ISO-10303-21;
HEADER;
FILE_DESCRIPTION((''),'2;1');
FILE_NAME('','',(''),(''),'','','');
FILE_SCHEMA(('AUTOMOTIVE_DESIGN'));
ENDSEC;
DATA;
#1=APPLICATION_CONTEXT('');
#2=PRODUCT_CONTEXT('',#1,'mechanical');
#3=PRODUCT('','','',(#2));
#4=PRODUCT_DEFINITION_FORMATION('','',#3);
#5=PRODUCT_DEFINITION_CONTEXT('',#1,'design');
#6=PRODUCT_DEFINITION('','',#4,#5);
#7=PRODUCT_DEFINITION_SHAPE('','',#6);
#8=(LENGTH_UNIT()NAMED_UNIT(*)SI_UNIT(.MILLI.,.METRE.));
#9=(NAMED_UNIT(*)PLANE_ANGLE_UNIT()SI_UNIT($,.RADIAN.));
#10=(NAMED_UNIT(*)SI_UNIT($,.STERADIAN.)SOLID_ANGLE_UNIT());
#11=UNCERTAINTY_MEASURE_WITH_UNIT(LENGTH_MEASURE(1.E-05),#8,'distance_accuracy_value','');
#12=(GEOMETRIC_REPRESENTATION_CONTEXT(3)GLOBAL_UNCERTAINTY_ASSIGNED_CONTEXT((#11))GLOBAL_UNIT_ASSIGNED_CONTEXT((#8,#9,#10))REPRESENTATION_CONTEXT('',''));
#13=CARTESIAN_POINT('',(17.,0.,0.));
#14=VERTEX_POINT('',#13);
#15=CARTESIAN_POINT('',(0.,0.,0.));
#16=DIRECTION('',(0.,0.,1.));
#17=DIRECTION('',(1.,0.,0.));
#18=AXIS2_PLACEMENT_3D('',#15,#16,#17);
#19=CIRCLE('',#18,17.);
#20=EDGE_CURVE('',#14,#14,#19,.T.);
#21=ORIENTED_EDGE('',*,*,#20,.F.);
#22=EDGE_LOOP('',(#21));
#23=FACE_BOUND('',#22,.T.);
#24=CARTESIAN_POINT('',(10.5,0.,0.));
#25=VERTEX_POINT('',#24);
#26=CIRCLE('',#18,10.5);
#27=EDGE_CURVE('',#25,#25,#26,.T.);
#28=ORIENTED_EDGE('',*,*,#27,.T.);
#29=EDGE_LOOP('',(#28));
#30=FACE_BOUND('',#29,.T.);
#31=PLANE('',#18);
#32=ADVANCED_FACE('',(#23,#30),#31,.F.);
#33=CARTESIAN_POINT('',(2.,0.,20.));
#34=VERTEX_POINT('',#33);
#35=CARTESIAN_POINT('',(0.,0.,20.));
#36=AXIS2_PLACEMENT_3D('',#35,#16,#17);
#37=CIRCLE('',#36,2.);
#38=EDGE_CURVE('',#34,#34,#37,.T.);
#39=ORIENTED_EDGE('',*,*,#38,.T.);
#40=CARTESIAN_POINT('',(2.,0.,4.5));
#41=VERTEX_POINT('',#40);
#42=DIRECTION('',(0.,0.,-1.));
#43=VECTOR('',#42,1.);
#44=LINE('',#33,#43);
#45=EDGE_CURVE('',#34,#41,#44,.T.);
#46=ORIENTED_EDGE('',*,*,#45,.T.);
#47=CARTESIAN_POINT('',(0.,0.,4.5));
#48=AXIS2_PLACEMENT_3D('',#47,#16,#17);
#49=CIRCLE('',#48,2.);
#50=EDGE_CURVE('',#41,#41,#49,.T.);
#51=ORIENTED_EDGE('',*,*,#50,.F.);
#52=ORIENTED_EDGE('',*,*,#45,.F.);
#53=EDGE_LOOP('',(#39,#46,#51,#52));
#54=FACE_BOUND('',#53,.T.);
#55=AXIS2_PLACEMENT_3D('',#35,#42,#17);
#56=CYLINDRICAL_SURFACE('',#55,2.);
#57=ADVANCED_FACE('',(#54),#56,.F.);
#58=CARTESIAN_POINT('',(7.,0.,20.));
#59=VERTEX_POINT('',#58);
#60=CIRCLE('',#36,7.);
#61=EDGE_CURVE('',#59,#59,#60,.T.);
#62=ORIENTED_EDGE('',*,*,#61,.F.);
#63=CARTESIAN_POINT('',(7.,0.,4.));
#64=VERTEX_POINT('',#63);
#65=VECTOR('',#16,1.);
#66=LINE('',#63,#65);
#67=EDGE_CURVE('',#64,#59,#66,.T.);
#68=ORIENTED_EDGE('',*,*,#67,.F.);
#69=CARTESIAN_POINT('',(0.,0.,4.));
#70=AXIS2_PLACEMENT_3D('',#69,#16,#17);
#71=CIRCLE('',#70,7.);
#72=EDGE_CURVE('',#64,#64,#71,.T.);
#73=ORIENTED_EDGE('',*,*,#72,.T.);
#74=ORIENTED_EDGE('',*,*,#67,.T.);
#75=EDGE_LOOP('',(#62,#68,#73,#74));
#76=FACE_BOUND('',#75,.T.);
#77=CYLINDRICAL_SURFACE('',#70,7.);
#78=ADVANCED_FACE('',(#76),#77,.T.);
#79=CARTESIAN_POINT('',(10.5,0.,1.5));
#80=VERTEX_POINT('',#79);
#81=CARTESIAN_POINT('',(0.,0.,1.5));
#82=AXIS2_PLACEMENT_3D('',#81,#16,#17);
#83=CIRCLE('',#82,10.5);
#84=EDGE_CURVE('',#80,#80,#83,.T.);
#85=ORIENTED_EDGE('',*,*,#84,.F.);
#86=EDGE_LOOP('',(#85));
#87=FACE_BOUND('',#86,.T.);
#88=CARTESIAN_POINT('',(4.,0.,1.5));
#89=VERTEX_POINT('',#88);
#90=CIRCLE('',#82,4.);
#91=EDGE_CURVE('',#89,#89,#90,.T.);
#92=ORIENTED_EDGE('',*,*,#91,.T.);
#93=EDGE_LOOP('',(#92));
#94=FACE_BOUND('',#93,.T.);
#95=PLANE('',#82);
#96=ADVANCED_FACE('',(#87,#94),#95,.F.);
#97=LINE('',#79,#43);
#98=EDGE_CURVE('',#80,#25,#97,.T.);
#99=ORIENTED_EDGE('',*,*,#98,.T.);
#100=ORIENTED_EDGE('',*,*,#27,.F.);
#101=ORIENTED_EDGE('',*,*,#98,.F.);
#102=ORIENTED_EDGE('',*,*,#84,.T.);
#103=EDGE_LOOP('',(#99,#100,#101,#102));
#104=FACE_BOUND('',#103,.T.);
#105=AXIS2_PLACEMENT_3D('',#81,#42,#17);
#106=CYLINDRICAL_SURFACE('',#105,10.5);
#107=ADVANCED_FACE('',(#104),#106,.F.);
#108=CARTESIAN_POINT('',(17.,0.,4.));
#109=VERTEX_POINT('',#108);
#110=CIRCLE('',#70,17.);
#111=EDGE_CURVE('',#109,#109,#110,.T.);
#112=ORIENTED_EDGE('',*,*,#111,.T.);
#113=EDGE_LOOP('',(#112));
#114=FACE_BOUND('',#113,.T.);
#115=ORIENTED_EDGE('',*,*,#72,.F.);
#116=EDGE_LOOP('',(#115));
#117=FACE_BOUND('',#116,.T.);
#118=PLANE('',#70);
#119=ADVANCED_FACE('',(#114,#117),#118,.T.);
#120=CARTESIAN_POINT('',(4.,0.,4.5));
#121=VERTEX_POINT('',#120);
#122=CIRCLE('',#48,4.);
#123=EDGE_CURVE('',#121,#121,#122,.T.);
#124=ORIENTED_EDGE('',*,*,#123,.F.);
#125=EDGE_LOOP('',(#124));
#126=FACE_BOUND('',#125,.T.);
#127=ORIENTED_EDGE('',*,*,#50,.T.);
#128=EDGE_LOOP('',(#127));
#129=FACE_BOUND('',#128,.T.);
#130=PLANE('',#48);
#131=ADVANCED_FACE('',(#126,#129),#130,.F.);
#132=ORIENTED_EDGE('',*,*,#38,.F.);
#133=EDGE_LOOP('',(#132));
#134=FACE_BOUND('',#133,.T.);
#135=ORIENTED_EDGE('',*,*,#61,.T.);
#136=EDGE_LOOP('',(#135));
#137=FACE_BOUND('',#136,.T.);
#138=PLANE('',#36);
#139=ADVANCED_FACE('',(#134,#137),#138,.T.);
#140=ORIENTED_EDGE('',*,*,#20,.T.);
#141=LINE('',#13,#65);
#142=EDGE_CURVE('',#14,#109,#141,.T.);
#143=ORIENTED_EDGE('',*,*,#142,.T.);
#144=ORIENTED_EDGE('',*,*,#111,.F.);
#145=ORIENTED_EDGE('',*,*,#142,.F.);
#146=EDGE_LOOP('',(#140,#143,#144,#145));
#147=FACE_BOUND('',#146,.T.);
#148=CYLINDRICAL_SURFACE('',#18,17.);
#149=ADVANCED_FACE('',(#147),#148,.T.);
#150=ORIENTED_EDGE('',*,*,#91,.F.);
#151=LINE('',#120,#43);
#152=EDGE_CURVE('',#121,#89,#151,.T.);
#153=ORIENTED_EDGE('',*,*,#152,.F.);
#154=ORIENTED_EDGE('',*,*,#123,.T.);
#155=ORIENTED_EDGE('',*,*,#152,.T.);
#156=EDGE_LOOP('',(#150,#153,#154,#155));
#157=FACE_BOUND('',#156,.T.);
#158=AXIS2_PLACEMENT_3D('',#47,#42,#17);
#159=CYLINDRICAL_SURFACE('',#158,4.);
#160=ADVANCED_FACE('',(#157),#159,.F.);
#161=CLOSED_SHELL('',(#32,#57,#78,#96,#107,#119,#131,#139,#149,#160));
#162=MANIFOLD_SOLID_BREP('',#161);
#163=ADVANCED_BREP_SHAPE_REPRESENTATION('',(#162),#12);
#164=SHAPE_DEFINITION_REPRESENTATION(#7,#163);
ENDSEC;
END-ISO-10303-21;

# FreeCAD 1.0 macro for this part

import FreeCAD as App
import Part
import Sketcher
from FreeCAD import Vector

doc = App.newDocument("Part")
params = doc.addObject("Spreadsheet::Sheet", "Params")
for row, (alias, value) in enumerate([
    ("sketch1_width", "2 mm"),
    ("sketch1_width2", "10 mm"),
    ("sketch1_width3", "5 mm"),
    ("sketch1_height", "3 mm"),
    ("sketch1_height2", "4 mm"),
    ("revolution_angle", "360 deg"),
], start=1):
    params.set(f"A{row}", alias)
    params.set(f"B{row}", "=" + value)
    params.setAlias(f"B{row}", alias)

body = doc.addObject("PartDesign::Body", "Body")

sketch1 = body.newObject("Sketcher::SketchObject", "Sketch")
sketch1.AttachmentSupport = (doc.getObject("XZ_Plane"), [""])
sketch1.MapMode = "FlatFace"
sketch1.addGeometry([
    Part.LineSegment(Vector(2, 20, 0), Vector(2, 4.5, 0)),
    Part.LineSegment(Vector(2, 4.5, 0), Vector(4, 4.5, 0)),
    Part.LineSegment(Vector(4, 4.5, 0), Vector(4, 1.5, 0)),
    Part.LineSegment(Vector(4, 1.5, 0), Vector(10.5, 1.5, 0)),
    Part.LineSegment(Vector(10.5, 1.5, 0), Vector(10.5, 0, 0)),
    Part.LineSegment(Vector(10.5, 0, 0), Vector(17, 0, 0)),
    Part.LineSegment(Vector(17, 0, 0), Vector(17, 4, 0)),
    Part.LineSegment(Vector(17, 4, 0), Vector(7, 4, 0)),
    Part.LineSegment(Vector(7, 4, 0), Vector(7, 20, 0)),
    Part.LineSegment(Vector(7, 20, 0), Vector(2, 20, 0)),
], False)
sketch1.addConstraint([
    Sketcher.Constraint("Coincident", 0, 2, 1, 1),
    Sketcher.Constraint("Coincident", 1, 2, 2, 1),
    Sketcher.Constraint("Coincident", 2, 2, 3, 1),
    Sketcher.Constraint("Coincident", 3, 2, 4, 1),
    Sketcher.Constraint("Coincident", 4, 2, 5, 1),
    Sketcher.Constraint("Coincident", 5, 2, 6, 1),
    Sketcher.Constraint("Coincident", 6, 2, 7, 1),
    Sketcher.Constraint("Coincident", 7, 2, 8, 1),
    Sketcher.Constraint("Coincident", 8, 2, 9, 1),
    Sketcher.Constraint("Coincident", 9, 2, 0, 1),
    Sketcher.Constraint("Vertical", 0),
    Sketcher.Constraint("Horizontal", 1),
    Sketcher.Constraint("Vertical", 2),
    Sketcher.Constraint("Horizontal", 3),
    Sketcher.Constraint("Vertical", 4),
    Sketcher.Constraint("Horizontal", 5),
    Sketcher.Constraint("Vertical", 6),
    Sketcher.Constraint("Horizontal", 7),
    Sketcher.Constraint("Vertical", 8),
    Sketcher.Constraint("Horizontal", 9),
    Sketcher.Constraint("PointOnObject", 4, 2, -1),
    Sketcher.Constraint("Equal", 3, 5),
    Sketcher.Constraint("DistanceX", 1, 1, 1, 2, 2.0),
    Sketcher.Constraint("DistanceX", 7, 2, 7, 1, 10.0),
    Sketcher.Constraint("DistanceX", 9, 2, 9, 1, 5.0),
    Sketcher.Constraint("DistanceY", 2, 2, 2, 1, 3.0),
    Sketcher.Constraint("DistanceY", 6, 1, 6, 2, 4.0),
    Sketcher.Constraint("DistanceY", 8, 1, 8, 2, 16.0),
    Sketcher.Constraint("DistanceY", 0, 2, 0, 1, 15.5),
    Sketcher.Constraint("DistanceX", -1, 1, 0, 2, 2.0),
])
sketch1.setExpression("Constraints[22]", "Params.sketch1_width")
sketch1.setExpression("Constraints[23]", "Params.sketch1_width2")
sketch1.setExpression("Constraints[24]", "Params.sketch1_width3")
sketch1.setExpression("Constraints[25]", "Params.sketch1_height")
sketch1.setExpression("Constraints[26]", "Params.sketch1_height2")
revolution = body.newObject("PartDesign::Revolution", "Revolution")
revolution.Profile = sketch1
revolution.ReferenceAxis = (sketch1, ["V_Axis"])
revolution.setExpression("Angle", "Params.revolution_angle")

doc.recompute()
